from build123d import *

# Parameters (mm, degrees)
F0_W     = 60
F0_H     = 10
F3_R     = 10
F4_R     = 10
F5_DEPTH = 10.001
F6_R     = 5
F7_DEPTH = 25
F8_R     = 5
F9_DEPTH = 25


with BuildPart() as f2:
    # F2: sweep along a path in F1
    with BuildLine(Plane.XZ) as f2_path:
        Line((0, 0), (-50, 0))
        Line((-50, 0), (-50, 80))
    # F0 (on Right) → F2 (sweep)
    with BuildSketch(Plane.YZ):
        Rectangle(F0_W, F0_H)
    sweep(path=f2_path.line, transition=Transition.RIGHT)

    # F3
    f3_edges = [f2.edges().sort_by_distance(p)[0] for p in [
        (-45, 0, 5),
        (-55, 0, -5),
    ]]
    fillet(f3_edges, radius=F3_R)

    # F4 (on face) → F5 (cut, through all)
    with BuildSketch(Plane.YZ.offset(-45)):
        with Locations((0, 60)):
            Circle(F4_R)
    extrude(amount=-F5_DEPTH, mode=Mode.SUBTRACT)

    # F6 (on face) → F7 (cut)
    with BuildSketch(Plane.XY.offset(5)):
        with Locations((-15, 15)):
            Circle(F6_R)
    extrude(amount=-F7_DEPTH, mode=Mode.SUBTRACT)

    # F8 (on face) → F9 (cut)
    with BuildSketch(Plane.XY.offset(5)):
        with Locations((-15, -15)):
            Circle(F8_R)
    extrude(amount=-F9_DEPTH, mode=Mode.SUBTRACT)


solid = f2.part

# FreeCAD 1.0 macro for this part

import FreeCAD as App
import Part
import Sketcher
from FreeCAD import Vector
Q = App.Units.Quantity


def edges_at(feature, points):
    """Names of the edges that pass closest to the given points."""
    edges = feature.Shape.Edges
    near = lambda p: min(range(len(edges)), key=lambda i: edges[i].distToShape(Part.Vertex(*p))[0])
    return sorted({f"Edge{near(p) + 1}" for p in points})


def add_polygon(sketch, points):
    """Adds a closed chain of lines whose ends are joined by coincident constraints."""
    first, n = sketch.GeometryCount, len(points)
    for a, b in zip(points, points[1:] + points[:1]):
        sketch.addGeometry(Part.LineSegment(App.Vector(*a, 0), App.Vector(*b, 0)), False)
    for i in range(n):
        sketch.addConstraint(Sketcher.Constraint("Coincident", first + i, 2, first + (i + 1) % n, 1))

doc = App.newDocument("Part")
params = doc.addObject("Spreadsheet::Sheet", "Params")
for row, (alias, value) in enumerate([
    ("sketch1_width", "60 mm"),
    ("sketch1_height", "10 mm"),
    ("sketch2_width", "50 mm"),
    ("sketch2_height", "80 mm"),
    ("fillet_radius", "10 mm"),
    ("sketch3_diameter", "20 mm"),
    ("sketch4_diameter", "10 mm"),
    ("pocket2_length", "25 mm"),
    ("sketch5_diameter", "10 mm"),
    ("pocket3_length", "25 mm"),
], start=1):
    params.set(f"A{row}", alias)
    params.set(f"B{row}", "=" + value)
    params.setAlias(f"B{row}", alias)

body = doc.addObject("PartDesign::Body", "Body")

# Sketch on YZ plane
sketch1 = body.newObject("Sketcher::SketchObject", "Sketch")
sketch1.AttachmentSupport = (doc.getObject("YZ_Plane"), [""])
sketch1.MapMode = "FlatFace"
add_polygon(sketch1, [(-30, 5), (-30, -5), (30, -5), (30, 5)])  # lines 0-3
sketch1.addConstraint(Sketcher.Constraint("Vertical", 0))
sketch1.addConstraint(Sketcher.Constraint("Horizontal", 1))
sketch1.addConstraint(Sketcher.Constraint("Vertical", 2))
sketch1.addConstraint(Sketcher.Constraint("Horizontal", 3))
sketch1.addConstraint(Sketcher.Constraint("Symmetric", 0, 2, 2, 2, -1, 1))
sketch1.addConstraint(Sketcher.Constraint("DistanceX", 1, 1, 1, 2, Q("60 mm")))
sketch1.addConstraint(Sketcher.Constraint("DistanceY", 0, 2, 0, 1, Q("10 mm")))
sketch1.setExpression("Constraints[9]", "Params.sketch1_width")
sketch1.setExpression("Constraints[10]", "Params.sketch1_height")

# Sketch on XZ plane
sketch2 = body.newObject("Sketcher::SketchObject", "Sketch001")
sketch2.AttachmentSupport = (doc.getObject("XZ_Plane"), [""])
sketch2.MapMode = "FlatFace"
sketch2.addGeometry(Part.LineSegment(Vector(0, 0, 0), Vector(-50, 0, 0)), False)
sketch2.addGeometry(Part.LineSegment(Vector(-50, 0, 0), Vector(-50, 80, 0)), False)
sketch2.addConstraint(Sketcher.Constraint("Coincident", 0, 2, 1, 1))
sketch2.addConstraint(Sketcher.Constraint("Horizontal", 0))
sketch2.addConstraint(Sketcher.Constraint("Vertical", 1))
sketch2.addConstraint(Sketcher.Constraint("Coincident", 0, 1, -1, 1))
sketch2.addConstraint(Sketcher.Constraint("DistanceX", 0, 2, 0, 1, Q("50 mm")))
sketch2.addConstraint(Sketcher.Constraint("DistanceY", 1, 1, 1, 2, Q("80 mm")))
sketch2.setExpression("Constraints[4]", "Params.sketch2_width")
sketch2.setExpression("Constraints[5]", "Params.sketch2_height")
doc.recompute()

additivepipe = body.newObject("PartDesign::AdditivePipe", "AdditivePipe")
additivepipe.Profile = sketch1
additivepipe.Spine = (sketch2, ["Edge1", "Edge2"])
additivepipe.Transition = "Right corner"
doc.recompute()

fillet = body.newObject("PartDesign::Fillet", "Fillet")
fillet.Base = (additivepipe, edges_at(additivepipe, [(-45, 0, 5), (-55, 0, -5)]))
fillet.setExpression("Radius", "Params.fillet_radius")

# Sketch on YZ plane
sketch3 = body.newObject("Sketcher::SketchObject", "Sketch002")
sketch3.AttachmentSupport = (doc.getObject("YZ_Plane"), [""])
sketch3.MapMode = "FlatFace"
sketch3.AttachmentOffset = App.Placement(Vector(0, 0, -45), App.Rotation())
sketch3.addGeometry(Part.Circle(Vector(0, 60, 0), Vector(0, 0, 1), 10), False)
sketch3.addConstraint(Sketcher.Constraint("PointOnObject", 0, 3, -2))
sketch3.addConstraint(Sketcher.Constraint("Diameter", 0, Q("20 mm")))
sketch3.addConstraint(Sketcher.Constraint("DistanceY", -1, 1, 0, 3, Q("60 mm")))
sketch3.setExpression("Constraints[1]", "Params.sketch3_diameter")
pocket1 = body.newObject("PartDesign::Pocket", "Pocket")
pocket1.Profile = sketch3
pocket1.Type = "ThroughAll"

# Sketch on XY plane
sketch4 = body.newObject("Sketcher::SketchObject", "Sketch003")
sketch4.AttachmentSupport = (doc.getObject("XY_Plane"), [""])
sketch4.MapMode = "FlatFace"
sketch4.AttachmentOffset = App.Placement(Vector(0, 0, 5), App.Rotation())
sketch4.addGeometry(Part.Circle(Vector(-15, 15, 0), Vector(0, 0, 1), 5), False)
sketch4.addConstraint(Sketcher.Constraint("Diameter", 0, Q("10 mm")))
sketch4.addConstraint(Sketcher.Constraint("DistanceX", 0, 3, -1, 1, Q("15 mm")))
sketch4.addConstraint(Sketcher.Constraint("DistanceY", -1, 1, 0, 3, Q("15 mm")))
sketch4.setExpression("Constraints[0]", "Params.sketch4_diameter")
pocket2 = body.newObject("PartDesign::Pocket", "Pocket001")
pocket2.Profile = sketch4
pocket2.setExpression("Length", "Params.pocket2_length")

# Sketch on XY plane
sketch5 = body.newObject("Sketcher::SketchObject", "Sketch004")
sketch5.AttachmentSupport = (doc.getObject("XY_Plane"), [""])
sketch5.MapMode = "FlatFace"
sketch5.AttachmentOffset = App.Placement(Vector(0, 0, 5), App.Rotation())
sketch5.addGeometry(Part.Circle(Vector(-15, -15, 0), Vector(0, 0, 1), 5), False)
sketch5.addConstraint(Sketcher.Constraint("Diameter", 0, Q("10 mm")))
sketch5.addConstraint(Sketcher.Constraint("DistanceX", 0, 3, -1, 1, Q("15 mm")))
sketch5.addConstraint(Sketcher.Constraint("DistanceY", 0, 3, -1, 1, Q("15 mm")))
sketch5.setExpression("Constraints[0]", "Params.sketch5_diameter")
pocket3 = body.newObject("PartDesign::Pocket", "Pocket002")
pocket3.Profile = sketch5
pocket3.setExpression("Length", "Params.pocket3_length")

doc.recompute()
